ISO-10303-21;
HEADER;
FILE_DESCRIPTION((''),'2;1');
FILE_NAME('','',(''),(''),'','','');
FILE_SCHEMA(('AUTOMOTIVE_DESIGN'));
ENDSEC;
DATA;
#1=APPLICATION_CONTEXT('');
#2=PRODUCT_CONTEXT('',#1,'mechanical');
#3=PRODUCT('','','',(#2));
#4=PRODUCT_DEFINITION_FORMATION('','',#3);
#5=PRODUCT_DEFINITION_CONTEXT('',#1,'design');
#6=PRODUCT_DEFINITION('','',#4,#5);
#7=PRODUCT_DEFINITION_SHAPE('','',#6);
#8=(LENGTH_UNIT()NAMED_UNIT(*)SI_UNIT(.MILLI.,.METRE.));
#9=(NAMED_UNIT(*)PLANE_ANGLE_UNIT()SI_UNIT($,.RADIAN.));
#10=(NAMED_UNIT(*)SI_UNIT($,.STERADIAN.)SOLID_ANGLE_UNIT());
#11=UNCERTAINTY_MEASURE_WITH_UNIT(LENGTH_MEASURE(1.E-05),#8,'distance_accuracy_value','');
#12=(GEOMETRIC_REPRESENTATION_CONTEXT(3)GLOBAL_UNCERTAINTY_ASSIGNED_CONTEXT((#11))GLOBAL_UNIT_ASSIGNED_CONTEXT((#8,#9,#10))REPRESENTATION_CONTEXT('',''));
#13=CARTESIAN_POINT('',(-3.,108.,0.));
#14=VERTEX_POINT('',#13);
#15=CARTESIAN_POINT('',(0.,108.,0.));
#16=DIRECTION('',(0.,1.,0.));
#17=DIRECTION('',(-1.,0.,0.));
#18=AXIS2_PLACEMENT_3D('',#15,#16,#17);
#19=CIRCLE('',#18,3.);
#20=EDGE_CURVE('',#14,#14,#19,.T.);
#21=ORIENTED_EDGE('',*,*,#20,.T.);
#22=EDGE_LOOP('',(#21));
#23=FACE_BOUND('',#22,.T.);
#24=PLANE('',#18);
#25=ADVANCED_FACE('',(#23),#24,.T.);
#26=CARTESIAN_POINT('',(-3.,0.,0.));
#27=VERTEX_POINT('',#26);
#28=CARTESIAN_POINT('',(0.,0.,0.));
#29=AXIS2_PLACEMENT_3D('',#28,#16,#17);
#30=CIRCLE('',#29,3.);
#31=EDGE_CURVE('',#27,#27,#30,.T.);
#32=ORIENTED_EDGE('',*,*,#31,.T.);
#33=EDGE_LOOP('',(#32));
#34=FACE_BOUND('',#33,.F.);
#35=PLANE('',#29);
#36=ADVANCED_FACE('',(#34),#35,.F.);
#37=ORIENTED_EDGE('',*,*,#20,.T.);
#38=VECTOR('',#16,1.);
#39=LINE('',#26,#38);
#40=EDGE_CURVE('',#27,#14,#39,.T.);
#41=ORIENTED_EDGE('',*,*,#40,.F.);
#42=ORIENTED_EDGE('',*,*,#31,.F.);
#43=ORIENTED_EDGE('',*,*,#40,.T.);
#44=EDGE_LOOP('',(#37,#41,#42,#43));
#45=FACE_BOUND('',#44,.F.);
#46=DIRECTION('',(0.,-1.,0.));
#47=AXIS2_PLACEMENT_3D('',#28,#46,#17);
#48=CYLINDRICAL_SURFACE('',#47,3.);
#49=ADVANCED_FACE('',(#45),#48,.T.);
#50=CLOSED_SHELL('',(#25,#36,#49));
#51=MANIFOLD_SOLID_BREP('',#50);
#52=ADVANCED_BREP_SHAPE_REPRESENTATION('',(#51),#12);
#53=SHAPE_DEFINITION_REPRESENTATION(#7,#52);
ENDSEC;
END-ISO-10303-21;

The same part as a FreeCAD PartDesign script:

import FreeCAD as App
import Part
import Sketcher

V = App.Vector

doc = App.newDocument("Part")
body = doc.addObject("PartDesign::Body", "Body")

# Sketch on XZ plane
sketch1 = body.newObject("Sketcher::SketchObject", "Sketch")
sketch1.AttachmentSupport = (doc.getObject("XZ_Plane"), [""])
sketch1.MapMode = "FlatFace"
sketch1.addGeometry(Part.Circle(V(0, 0, 0), V(0, 0, 1), 3), False)
sketch1.addConstraint([
    Sketcher.Constraint("Coincident", 0, 3, -1, 1),
    Sketcher.Constraint("Diameter", 0, 6.0),
])
pad1 = body.newObject("PartDesign::Pad", "Pad")
pad1.Profile = sketch1
pad1.Length = 108
pad1.Reversed = True

doc.recompute()
